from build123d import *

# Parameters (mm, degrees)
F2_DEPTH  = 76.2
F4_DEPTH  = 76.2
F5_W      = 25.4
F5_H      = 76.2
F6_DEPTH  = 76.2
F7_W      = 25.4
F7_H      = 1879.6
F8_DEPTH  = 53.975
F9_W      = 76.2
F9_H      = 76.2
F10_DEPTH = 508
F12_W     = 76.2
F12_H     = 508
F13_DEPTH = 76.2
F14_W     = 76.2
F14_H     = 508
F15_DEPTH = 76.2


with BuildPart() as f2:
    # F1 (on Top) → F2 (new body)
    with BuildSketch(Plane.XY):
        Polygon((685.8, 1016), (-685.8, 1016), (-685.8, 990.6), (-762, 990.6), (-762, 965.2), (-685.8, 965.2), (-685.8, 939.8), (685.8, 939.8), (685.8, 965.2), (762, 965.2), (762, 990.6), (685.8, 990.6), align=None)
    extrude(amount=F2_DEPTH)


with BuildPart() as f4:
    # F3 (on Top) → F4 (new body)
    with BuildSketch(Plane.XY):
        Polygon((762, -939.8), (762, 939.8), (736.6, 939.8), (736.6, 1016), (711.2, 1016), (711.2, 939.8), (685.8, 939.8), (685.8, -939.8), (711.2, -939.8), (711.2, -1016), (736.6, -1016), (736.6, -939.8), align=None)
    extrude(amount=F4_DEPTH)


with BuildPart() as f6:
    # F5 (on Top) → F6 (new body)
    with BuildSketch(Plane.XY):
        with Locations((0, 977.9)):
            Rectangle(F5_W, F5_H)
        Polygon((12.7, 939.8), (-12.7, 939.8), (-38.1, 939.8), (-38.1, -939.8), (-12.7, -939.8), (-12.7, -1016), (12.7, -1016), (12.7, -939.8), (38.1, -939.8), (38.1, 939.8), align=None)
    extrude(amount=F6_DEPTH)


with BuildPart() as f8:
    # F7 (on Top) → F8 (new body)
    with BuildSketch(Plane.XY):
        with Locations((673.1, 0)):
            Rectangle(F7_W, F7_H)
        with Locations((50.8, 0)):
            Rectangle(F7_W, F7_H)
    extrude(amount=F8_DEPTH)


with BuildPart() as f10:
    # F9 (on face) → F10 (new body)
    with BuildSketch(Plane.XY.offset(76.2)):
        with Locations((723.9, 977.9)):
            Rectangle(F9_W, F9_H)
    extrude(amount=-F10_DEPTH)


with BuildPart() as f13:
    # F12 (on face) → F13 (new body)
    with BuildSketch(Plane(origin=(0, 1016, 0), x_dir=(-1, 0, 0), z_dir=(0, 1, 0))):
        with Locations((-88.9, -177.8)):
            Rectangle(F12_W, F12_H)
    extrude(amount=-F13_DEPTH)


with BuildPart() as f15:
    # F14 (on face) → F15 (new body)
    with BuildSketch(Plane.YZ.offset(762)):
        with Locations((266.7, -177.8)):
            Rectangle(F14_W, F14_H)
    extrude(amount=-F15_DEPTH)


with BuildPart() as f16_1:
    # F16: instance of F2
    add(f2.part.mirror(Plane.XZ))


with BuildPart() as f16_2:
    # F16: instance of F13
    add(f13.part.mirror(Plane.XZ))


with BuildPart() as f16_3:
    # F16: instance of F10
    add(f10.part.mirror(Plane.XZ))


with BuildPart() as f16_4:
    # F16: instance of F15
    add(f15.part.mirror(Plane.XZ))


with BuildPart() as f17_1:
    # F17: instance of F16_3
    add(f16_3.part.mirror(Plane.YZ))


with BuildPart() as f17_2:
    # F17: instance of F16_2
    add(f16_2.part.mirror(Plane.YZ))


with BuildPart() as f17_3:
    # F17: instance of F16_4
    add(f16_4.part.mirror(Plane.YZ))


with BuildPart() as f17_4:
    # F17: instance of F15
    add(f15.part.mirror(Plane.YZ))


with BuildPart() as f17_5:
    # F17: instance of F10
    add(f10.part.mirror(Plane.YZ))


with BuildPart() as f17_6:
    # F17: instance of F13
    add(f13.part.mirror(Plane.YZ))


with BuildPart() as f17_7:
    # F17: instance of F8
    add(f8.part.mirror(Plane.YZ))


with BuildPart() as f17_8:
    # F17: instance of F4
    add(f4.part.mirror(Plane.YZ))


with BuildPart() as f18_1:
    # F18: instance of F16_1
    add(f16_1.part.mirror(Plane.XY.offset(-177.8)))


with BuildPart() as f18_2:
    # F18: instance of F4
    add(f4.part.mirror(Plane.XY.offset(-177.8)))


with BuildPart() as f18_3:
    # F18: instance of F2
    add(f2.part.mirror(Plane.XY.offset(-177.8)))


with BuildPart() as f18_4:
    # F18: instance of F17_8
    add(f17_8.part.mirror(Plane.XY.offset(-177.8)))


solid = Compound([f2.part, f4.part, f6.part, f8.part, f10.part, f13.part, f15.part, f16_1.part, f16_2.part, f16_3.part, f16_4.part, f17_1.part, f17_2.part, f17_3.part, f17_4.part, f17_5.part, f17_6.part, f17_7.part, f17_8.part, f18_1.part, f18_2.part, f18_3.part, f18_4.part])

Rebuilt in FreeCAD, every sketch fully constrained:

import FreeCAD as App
import Part
import Sketcher

V = App.Vector
Q = App.Units.Quantity

doc = App.newDocument("Part")
body = doc.addObject("PartDesign::Body", "Body")

# Sketch on XY plane
sketch1 = body.newObject("Sketcher::SketchObject", "Sketch")
sketch1.AttachmentSupport = (doc.getObject("XY_Plane"), [""])
sketch1.MapMode = "FlatFace"
sketch1.addGeometry([
    Part.LineSegment(V(686, 1016, 0), V(-686, 1016, 0)),  # 0
    Part.LineSegment(V(-686, 1016, 0), V(-686, 991, 0)),  # 1
    Part.LineSegment(V(-686, 991, 0), V(-762, 991, 0)),  # 2
    Part.LineSegment(V(-762, 991, 0), V(-762, 965, 0)),  # 3
    Part.LineSegment(V(-762, 965, 0), V(-686, 965, 0)),  # 4
    Part.LineSegment(V(-686, 965, 0), V(-686, 940, 0)),  # 5
    Part.LineSegment(V(-686, 940, 0), V(686, 940, 0)),  # 6
    Part.LineSegment(V(686, 940, 0), V(686, 965, 0)),  # 7
    Part.LineSegment(V(686, 965, 0), V(762, 965, 0)),  # 8
    Part.LineSegment(V(762, 965, 0), V(762, 991, 0)),  # 9
    Part.LineSegment(V(762, 991, 0), V(686, 991, 0)),  # 10
    Part.LineSegment(V(686, 991, 0), V(686, 1016, 0)),  # 11
], False)
sketch1.addConstraint([
    Sketcher.Constraint("Coincident", 0, 2, 1, 1),
    Sketcher.Constraint("Coincident", 1, 2, 2, 1),
    Sketcher.Constraint("Coincident", 2, 2, 3, 1),
    Sketcher.Constraint("Coincident", 3, 2, 4, 1),
    Sketcher.Constraint("Coincident", 4, 2, 5, 1),
    Sketcher.Constraint("Coincident", 5, 2, 6, 1),
    Sketcher.Constraint("Coincident", 6, 2, 7, 1),
    Sketcher.Constraint("Coincident", 7, 2, 8, 1),
    Sketcher.Constraint("Coincident", 8, 2, 9, 1),
    Sketcher.Constraint("Coincident", 9, 2, 10, 1),
    Sketcher.Constraint("Coincident", 10, 2, 11, 1),
    Sketcher.Constraint("Coincident", 11, 2, 0, 1),
    Sketcher.Constraint("Horizontal", 0),
    Sketcher.Constraint("Vertical", 1),
    Sketcher.Constraint("Horizontal", 2),
    Sketcher.Constraint("Vertical", 3),
    Sketcher.Constraint("Horizontal", 4),
    Sketcher.Constraint("Vertical", 5),
    Sketcher.Constraint("Horizontal", 6),
    Sketcher.Constraint("Vertical", 7),
    Sketcher.Constraint("Horizontal", 8),
    Sketcher.Constraint("Vertical", 9),
    Sketcher.Constraint("Horizontal", 10),
    Sketcher.Constraint("Vertical", 11),
    Sketcher.Constraint("Symmetric", 4, 2, 7, 2, -2),
    Sketcher.Constraint("Symmetric", 2, 2, 9, 2, -2),
    Sketcher.Constraint("Vertical", 1, 2, 4, 2),
    Sketcher.Constraint("Vertical", 7, 2, 10, 2),
    Sketcher.Constraint("Equal", 1, 3),
    Sketcher.Constraint("Equal", 3, 5),
    Sketcher.Constraint("DistanceX", 0, 2, 0, 1, Q("54 in")),
    Sketcher.Constraint("DistanceX", 2, 2, 2, 1, Q("3 in")),
    Sketcher.Constraint("DistanceY", 1, 2, 1, 1, Q("1 in")),
    Sketcher.Constraint("DistanceY", -1, 1, 0, 2, Q("40 in")),
])
pad1 = body.newObject("PartDesign::Pad", "Pad")
pad1.Profile = sketch1
pad1.Length = Q("3 in")
body2 = doc.addObject("PartDesign::Body", "Body001")

# Sketch on XY plane
sketch2 = body2.newObject("Sketcher::SketchObject", "Sketch001")
sketch2.AttachmentSupport = (doc.getObject("XY_Plane001"), [""])
sketch2.MapMode = "FlatFace"
sketch2.addGeometry([
    Part.LineSegment(V(762, -940, 0), V(762, 940, 0)),  # 0
    Part.LineSegment(V(762, 940, 0), V(737, 940, 0)),  # 1
    Part.LineSegment(V(737, 940, 0), V(737, 1016, 0)),  # 2
    Part.LineSegment(V(737, 1016, 0), V(711, 1016, 0)),  # 3
    Part.LineSegment(V(711, 1016, 0), V(711, 940, 0)),  # 4
    Part.LineSegment(V(711, 940, 0), V(686, 940, 0)),  # 5
    Part.LineSegment(V(686, 940, 0), V(686, -940, 0)),  # 6
    Part.LineSegment(V(686, -940, 0), V(711, -940, 0)),  # 7
    Part.LineSegment(V(711, -940, 0), V(711, -1016, 0)),  # 8
    Part.LineSegment(V(711, -1016, 0), V(737, -1016, 0)),  # 9
    Part.LineSegment(V(737, -1016, 0), V(737, -940, 0)),  # 10
    Part.LineSegment(V(737, -940, 0), V(762, -940, 0)),  # 11
], False)
sketch2.addConstraint([
    Sketcher.Constraint("Coincident", 0, 2, 1, 1),
    Sketcher.Constraint("Coincident", 1, 2, 2, 1),
    Sketcher.Constraint("Coincident", 2, 2, 3, 1),
    Sketcher.Constraint("Coincident", 3, 2, 4, 1),
    Sketcher.Constraint("Coincident", 4, 2, 5, 1),
    Sketcher.Constraint("Coincident", 5, 2, 6, 1),
    Sketcher.Constraint("Coincident", 6, 2, 7, 1),
    Sketcher.Constraint("Coincident", 7, 2, 8, 1),
    Sketcher.Constraint("Coincident", 8, 2, 9, 1),
    Sketcher.Constraint("Coincident", 9, 2, 10, 1),
    Sketcher.Constraint("Coincident", 10, 2, 11, 1),
    Sketcher.Constraint("Coincident", 11, 2, 0, 1),
    Sketcher.Constraint("Vertical", 0),
    Sketcher.Constraint("Horizontal", 1),
    Sketcher.Constraint("Vertical", 2),
    Sketcher.Constraint("Horizontal", 3),
    Sketcher.Constraint("Vertical", 4),
    Sketcher.Constraint("Horizontal", 5),
    Sketcher.Constraint("Vertical", 6),
    Sketcher.Constraint("Horizontal", 7),
    Sketcher.Constraint("Vertical", 8),
    Sketcher.Constraint("Horizontal", 9),
    Sketcher.Constraint("Vertical", 10),
    Sketcher.Constraint("Horizontal", 11),
    Sketcher.Constraint("Symmetric", 4, 2, 7, 2, -1),
    Sketcher.Constraint("Symmetric", 2, 2, 9, 2, -1),
    Sketcher.Constraint("Horizontal", 1, 2, 4, 2),
    Sketcher.Constraint("Horizontal", 7, 2, 10, 2),
    Sketcher.Constraint("Equal", 1, 3),
    Sketcher.Constraint("Equal", 3, 5),
    Sketcher.Constraint("DistanceX", 1, 2, 1, 1, Q("1 in")),
    Sketcher.Constraint("DistanceY", 0, 1, 0, 2, Q("74 in")),
    Sketcher.Constraint("DistanceY", 2, 1, 2, 2, Q("3 in")),
    Sketcher.Constraint("DistanceX", -1, 1, 0, 2, Q("30 in")),
])
pad2 = body2.newObject("PartDesign::Pad", "Pad001")
pad2.Profile = sketch2
pad2.Length = Q("3 in")
body3 = doc.addObject("PartDesign::Body", "Body002")

# Sketch on XY plane
sketch3 = body3.newObject("Sketcher::SketchObject", "Sketch002")
sketch3.AttachmentSupport = (doc.getObject("XY_Plane002"), [""])
sketch3.MapMode = "FlatFace"
sketch3.addGeometry([
    Part.LineSegment(V(-13, 1016, 0), V(-13, 940, 0)),  # 0
    Part.LineSegment(V(-13, 940, 0), V(-38, 940, 0)),  # 1
    Part.LineSegment(V(-38, 940, 0), V(-38, -940, 0)),  # 2
    Part.LineSegment(V(-38, -940, 0), V(-13, -940, 0)),  # 3
    Part.LineSegment(V(-13, -940, 0), V(-13, -1016, 0)),  # 4
    Part.LineSegment(V(-13, -1016, 0), V(13, -1016, 0)),  # 5
    Part.LineSegment(V(13, -1016, 0), V(13, -940, 0)),  # 6
    Part.LineSegment(V(13, -940, 0), V(38, -940, 0)),  # 7
    Part.LineSegment(V(38, -940, 0), V(38, 940, 0)),  # 8
    Part.LineSegment(V(38, 940, 0), V(13, 940, 0)),  # 9
    Part.LineSegment(V(13, 940, 0), V(13, 1016, 0)),  # 10
    Part.LineSegment(V(13, 1016, 0), V(-13, 1016, 0)),  # 11
], False)
sketch3.addConstraint([
    Sketcher.Constraint("Coincident", 0, 2, 1, 1),
    Sketcher.Constraint("Coincident", 1, 2, 2, 1),
    Sketcher.Constraint("Coincident", 2, 2, 3, 1),
    Sketcher.Constraint("Coincident", 3, 2, 4, 1),
    Sketcher.Constraint("Coincident", 4, 2, 5, 1),
    Sketcher.Constraint("Coincident", 5, 2, 6, 1),
    Sketcher.Constraint("Coincident", 6, 2, 7, 1),
    Sketcher.Constraint("Coincident", 7, 2, 8, 1),
    Sketcher.Constraint("Coincident", 8, 2, 9, 1),
    Sketcher.Constraint("Coincident", 9, 2, 10, 1),
    Sketcher.Constraint("Coincident", 10, 2, 11, 1),
    Sketcher.Constraint("Coincident", 11, 2, 0, 1),
    Sketcher.Constraint("Vertical", 0),
    Sketcher.Constraint("Horizontal", 1),
    Sketcher.Constraint("Vertical", 2),
    Sketcher.Constraint("Horizontal", 3),
    Sketcher.Constraint("Vertical", 4),
    Sketcher.Constraint("Horizontal", 5),
    Sketcher.Constraint("Vertical", 6),
    Sketcher.Constraint("Horizontal", 7),
    Sketcher.Constraint("Vertical", 8),
    Sketcher.Constraint("Horizontal", 9),
    Sketcher.Constraint("Vertical", 10),
    Sketcher.Constraint("Horizontal", 11),
    Sketcher.Constraint("Symmetric", 0, 2, 6, 2, -1, 1),
    Sketcher.Constraint("Symmetric", 2, 2, 8, 2, -1, 1),
    Sketcher.Constraint("Symmetric", 4, 2, 10, 2, -1, 1),
    Sketcher.Constraint("Symmetric", 3, 2, 6, 2, -2),
    Sketcher.Constraint("Equal", 3, 5),
    Sketcher.Constraint("DistanceX", 1, 2, 1, 1, Q("1 in")),
    Sketcher.Constraint("DistanceY", 0, 2, 0, 1, Q("3 in")),
    Sketcher.Constraint("DistanceY", 2, 2, 2, 1, Q("74 in")),
])
pad3 = body3.newObject("PartDesign::Pad", "Pad002")
pad3.Profile = sketch3
pad3.Length = Q("3 in")
body4 = doc.addObject("PartDesign::Body", "Body003")
body4.AllowCompound = True

# Sketch on XY plane
sketch4 = body4.newObject("Sketcher::SketchObject", "Sketch003")
sketch4.AttachmentSupport = (doc.getObject("XY_Plane003"), [""])
sketch4.MapMode = "FlatFace"
sketch4.addGeometry([
    Part.LineSegment(V(660, 940, 0), V(660, -940, 0)),  # 0
    Part.LineSegment(V(660, -940, 0), V(686, -940, 0)),  # 1
    Part.LineSegment(V(686, -940, 0), V(686, 940, 0)),  # 2
    Part.LineSegment(V(686, 940, 0), V(660, 940, 0)),  # 3
    Part.LineSegment(V(38, 940, 0), V(38, -940, 0)),  # 4
    Part.LineSegment(V(38, -940, 0), V(64, -940, 0)),  # 5
    Part.LineSegment(V(64, -940, 0), V(64, 940, 0)),  # 6
    Part.LineSegment(V(64, 940, 0), V(38, 940, 0)),  # 7
], False)
sketch4.addConstraint([
    Sketcher.Constraint("Coincident", 0, 2, 1, 1),
    Sketcher.Constraint("Coincident", 1, 2, 2, 1),
    Sketcher.Constraint("Coincident", 2, 2, 3, 1),
    Sketcher.Constraint("Coincident", 3, 2, 0, 1),
    Sketcher.Constraint("Coincident", 4, 2, 5, 1),
    Sketcher.Constraint("Coincident", 5, 2, 6, 1),
    Sketcher.Constraint("Coincident", 6, 2, 7, 1),
    Sketcher.Constraint("Coincident", 7, 2, 4, 1),
    Sketcher.Constraint("Vertical", 0),
    Sketcher.Constraint("Horizontal", 1),
    Sketcher.Constraint("Vertical", 2),
    Sketcher.Constraint("Horizontal", 3),
    Sketcher.Constraint("Vertical", 4),
    Sketcher.Constraint("Horizontal", 5),
    Sketcher.Constraint("Vertical", 6),
    Sketcher.Constraint("Horizontal", 7),
    Sketcher.Constraint("Horizontal", 1, 2, 4, 2),
    Sketcher.Constraint("Horizontal", 3, 2, 6, 2),
    Sketcher.Constraint("Equal", 3, 5),
    Sketcher.Constraint("DistanceX", 1, 1, 1, 2, Q("1 in")),
    Sketcher.Constraint("DistanceY", 0, 2, 0, 1, Q("74 in")),
    Sketcher.Constraint("DistanceX", -1, 1, 0, 2, Q("26 in")),
    Sketcher.Constraint("DistanceY", 0, 2, -1, 1, Q("37 in")),
    Sketcher.Constraint("DistanceX", -1, 1, 4, 2, Q("1.5 in")),
])
pad4 = body4.newObject("PartDesign::Pad", "Pad003")
pad4.Profile = sketch4
pad4.Length = Q("2.125 in")
body5 = doc.addObject("PartDesign::Body", "Body004")

# Sketch on XY plane
sketch5 = body5.newObject("Sketcher::SketchObject", "Sketch004")
sketch5.AttachmentSupport = (doc.getObject("XY_Plane004"), [""])
sketch5.MapMode = "FlatFace"
sketch5.AttachmentOffset = App.Placement(V(0, 0, 3 * 25.4), App.Rotation())
sketch5.addGeometry([
    Part.LineSegment(V(686, 1016, 0), V(686, 940, 0)),
    Part.LineSegment(V(686, 940, 0), V(762, 940, 0)),
    Part.LineSegment(V(762, 940, 0), V(762, 1016, 0)),
    Part.LineSegment(V(762, 1016, 0), V(686, 1016, 0)),
], False)
sketch5.addConstraint([
    Sketcher.Constraint("Coincident", 0, 2, 1, 1),
    Sketcher.Constraint("Coincident", 1, 2, 2, 1),
    Sketcher.Constraint("Coincident", 2, 2, 3, 1),
    Sketcher.Constraint("Coincident", 3, 2, 0, 1),
    Sketcher.Constraint("Vertical", 0),
    Sketcher.Constraint("Horizontal", 1),
    Sketcher.Constraint("Vertical", 2),
    Sketcher.Constraint("Horizontal", 3),
    Sketcher.Constraint("Equal", 3, 0),
    Sketcher.Constraint("DistanceX", 1, 1, 1, 2, Q("3 in")),
    Sketcher.Constraint("DistanceX", -1, 1, 0, 2, Q("27 in")),
    Sketcher.Constraint("DistanceY", -1, 1, 0, 2, Q("37 in")),
])
pad5 = body5.newObject("PartDesign::Pad", "Pad004")
pad5.Profile = sketch5
pad5.Length = Q("20 in")
pad5.Reversed = True
body6 = doc.addObject("PartDesign::Body", "Body005")

# Sketch on XZ plane
sketch6 = body6.newObject("Sketcher::SketchObject", "Sketch005")
sketch6.AttachmentSupport = (doc.getObject("XZ_Plane005"), [""])
sketch6.MapMode = "FlatFace"
sketch6.AttachmentOffset = App.Placement(V(0, 0, -40 * 25.4), App.Rotation())
sketch6.addGeometry([
    Part.LineSegment(V(127, 76, 0), V(127, -432, 0)),
    Part.LineSegment(V(127, -432, 0), V(51, -432, 0)),
    Part.LineSegment(V(51, -432, 0), V(51, 76, 0)),
    Part.LineSegment(V(51, 76, 0), V(127, 76, 0)),
], False)
sketch6.addConstraint([
    Sketcher.Constraint("Coincident", 0, 2, 1, 1),
    Sketcher.Constraint("Coincident", 1, 2, 2, 1),
    Sketcher.Constraint("Coincident", 2, 2, 3, 1),
    Sketcher.Constraint("Coincident", 3, 2, 0, 1),
    Sketcher.Constraint("Vertical", 0),
    Sketcher.Constraint("Horizontal", 1),
    Sketcher.Constraint("Vertical", 2),
    Sketcher.Constraint("Horizontal", 3),
    Sketcher.Constraint("DistanceX", 1, 2, 1, 1, Q("3 in")),
    Sketcher.Constraint("DistanceY", 0, 2, 0, 1, Q("20 in")),
    Sketcher.Constraint("DistanceX", -1, 1, 0, 2, Q("5 in")),
    Sketcher.Constraint("DistanceY", 0, 2, -1, 1, Q("17 in")),
])
pad6 = body6.newObject("PartDesign::Pad", "Pad005")
pad6.Profile = sketch6
pad6.Length = Q("3 in")
body7 = doc.addObject("PartDesign::Body", "Body006")

# Sketch on YZ plane
sketch7 = body7.newObject("Sketcher::SketchObject", "Sketch006")
sketch7.AttachmentSupport = (doc.getObject("YZ_Plane006"), [""])
sketch7.MapMode = "FlatFace"
sketch7.AttachmentOffset = App.Placement(V(0, 0, 30 * 25.4), App.Rotation())
sketch7.addGeometry([
    Part.LineSegment(V(229, 76, 0), V(229, -432, 0)),
    Part.LineSegment(V(229, -432, 0), V(305, -432, 0)),
    Part.LineSegment(V(305, -432, 0), V(305, 76, 0)),
    Part.LineSegment(V(305, 76, 0), V(229, 76, 0)),
], False)
sketch7.addConstraint([
    Sketcher.Constraint("Coincident", 0, 2, 1, 1),
    Sketcher.Constraint("Coincident", 1, 2, 2, 1),
    Sketcher.Constraint("Coincident", 2, 2, 3, 1),
    Sketcher.Constraint("Coincident", 3, 2, 0, 1),
    Sketcher.Constraint("Vertical", 0),
    Sketcher.Constraint("Horizontal", 1),
    Sketcher.Constraint("Vertical", 2),
    Sketcher.Constraint("Horizontal", 3),
    Sketcher.Constraint("DistanceX", 1, 1, 1, 2, Q("3 in")),
    Sketcher.Constraint("DistanceY", 0, 2, 0, 1, Q("20 in")),
    Sketcher.Constraint("DistanceX", -1, 1, 0, 2, Q("9 in")),
    Sketcher.Constraint("DistanceY", 0, 2, -1, 1, Q("17 in")),
])
pad7 = body7.newObject("PartDesign::Pad", "Pad006")
pad7.Profile = sketch7
pad7.Length = Q("3 in")
pad7.Reversed = True
body8 = doc.addObject("PartDesign::Body", "Body007")
doc.recompute()

mirroring = doc.addObject("Part::Mirroring", "Mirroring")
mirroring.Source = body
mirroring.Base = V(0, 0, 0)
mirroring.Normal = V(0, -1, 0)
body8.BaseFeature = mirroring
doc.recompute()
body9 = doc.addObject("PartDesign::Body", "Body008")
doc.recompute()

mirroring2 = doc.addObject("Part::Mirroring", "Mirroring001")
mirroring2.Source = body6
mirroring2.Base = V(0, 0, 0)
mirroring2.Normal = V(0, -1, 0)
body9.BaseFeature = mirroring2
doc.recompute()
body10 = doc.addObject("PartDesign::Body", "Body009")
doc.recompute()

mirroring3 = doc.addObject("Part::Mirroring", "Mirroring002")
mirroring3.Source = body5
mirroring3.Base = V(0, 0, 0)
mirroring3.Normal = V(0, -1, 0)
body10.BaseFeature = mirroring3
doc.recompute()
body11 = doc.addObject("PartDesign::Body", "Body010")
doc.recompute()

mirroring4 = doc.addObject("Part::Mirroring", "Mirroring003")
mirroring4.Source = body7
mirroring4.Base = V(0, 0, 0)
mirroring4.Normal = V(0, -1, 0)
body11.BaseFeature = mirroring4
doc.recompute()
body12 = doc.addObject("PartDesign::Body", "Body011")
doc.recompute()

mirroring5 = doc.addObject("Part::Mirroring", "Mirroring004")
mirroring5.Source = body10
mirroring5.Base = V(0, 0, 0)
mirroring5.Normal = V(1, 0, 0)
body12.BaseFeature = mirroring5
doc.recompute()
body13 = doc.addObject("PartDesign::Body", "Body012")
doc.recompute()

mirroring6 = doc.addObject("Part::Mirroring", "Mirroring005")
mirroring6.Source = body9
mirroring6.Base = V(0, 0, 0)
mirroring6.Normal = V(1, 0, 0)
body13.BaseFeature = mirroring6
doc.recompute()
body14 = doc.addObject("PartDesign::Body", "Body013")
doc.recompute()

mirroring7 = doc.addObject("Part::Mirroring", "Mirroring006")
mirroring7.Source = body11
mirroring7.Base = V(0, 0, 0)
mirroring7.Normal = V(1, 0, 0)
body14.BaseFeature = mirroring7
doc.recompute()
body15 = doc.addObject("PartDesign::Body", "Body014")
doc.recompute()

mirroring8 = doc.addObject("Part::Mirroring", "Mirroring007")
mirroring8.Source = body7
mirroring8.Base = V(0, 0, 0)
mirroring8.Normal = V(1, 0, 0)
body15.BaseFeature = mirroring8
doc.recompute()
body16 = doc.addObject("PartDesign::Body", "Body015")
doc.recompute()

mirroring9 = doc.addObject("Part::Mirroring", "Mirroring008")
mirroring9.Source = body5
mirroring9.Base = V(0, 0, 0)
mirroring9.Normal = V(1, 0, 0)
body16.BaseFeature = mirroring9
doc.recompute()
body17 = doc.addObject("PartDesign::Body", "Body016")
doc.recompute()

mirroring10 = doc.addObject("Part::Mirroring", "Mirroring009")
mirroring10.Source = body6
mirroring10.Base = V(0, 0, 0)
mirroring10.Normal = V(1, 0, 0)
body17.BaseFeature = mirroring10
doc.recompute()
body18 = doc.addObject("PartDesign::Body", "Body017")
body18.AllowCompound = True
doc.recompute()

mirroring11 = doc.addObject("Part::Mirroring", "Mirroring010")
mirroring11.Source = body4
mirroring11.Base = V(0, 0, 0)
mirroring11.Normal = V(1, 0, 0)
body18.BaseFeature = mirroring11
doc.recompute()
body19 = doc.addObject("PartDesign::Body", "Body018")
doc.recompute()

mirroring12 = doc.addObject("Part::Mirroring", "Mirroring011")
mirroring12.Source = body2
mirroring12.Base = V(0, 0, 0)
mirroring12.Normal = V(1, 0, 0)
body19.BaseFeature = mirroring12
doc.recompute()
body20 = doc.addObject("PartDesign::Body", "Body019")
doc.recompute()

mirroring13 = doc.addObject("Part::Mirroring", "Mirroring012")
mirroring13.Source = body8
mirroring13.Base = V(0, 0, -177.8)
mirroring13.Normal = V(0, 0, 1)
body20.BaseFeature = mirroring13
doc.recompute()
body21 = doc.addObject("PartDesign::Body", "Body020")
doc.recompute()

mirroring14 = doc.addObject("Part::Mirroring", "Mirroring013")
mirroring14.Source = body2
mirroring14.Base = V(0, 0, -177.8)
mirroring14.Normal = V(0, 0, 1)
body21.BaseFeature = mirroring14
doc.recompute()
body22 = doc.addObject("PartDesign::Body", "Body021")
doc.recompute()

mirroring15 = doc.addObject("Part::Mirroring", "Mirroring014")
mirroring15.Source = body
mirroring15.Base = V(0, 0, -177.8)
mirroring15.Normal = V(0, 0, 1)
body22.BaseFeature = mirroring15
doc.recompute()
body23 = doc.addObject("PartDesign::Body", "Body022")
doc.recompute()

mirroring16 = doc.addObject("Part::Mirroring", "Mirroring015")
mirroring16.Source = body19
mirroring16.Base = V(0, 0, -177.8)
mirroring16.Normal = V(0, 0, 1)
body23.BaseFeature = mirroring16
doc.recompute()

doc.recompute()
